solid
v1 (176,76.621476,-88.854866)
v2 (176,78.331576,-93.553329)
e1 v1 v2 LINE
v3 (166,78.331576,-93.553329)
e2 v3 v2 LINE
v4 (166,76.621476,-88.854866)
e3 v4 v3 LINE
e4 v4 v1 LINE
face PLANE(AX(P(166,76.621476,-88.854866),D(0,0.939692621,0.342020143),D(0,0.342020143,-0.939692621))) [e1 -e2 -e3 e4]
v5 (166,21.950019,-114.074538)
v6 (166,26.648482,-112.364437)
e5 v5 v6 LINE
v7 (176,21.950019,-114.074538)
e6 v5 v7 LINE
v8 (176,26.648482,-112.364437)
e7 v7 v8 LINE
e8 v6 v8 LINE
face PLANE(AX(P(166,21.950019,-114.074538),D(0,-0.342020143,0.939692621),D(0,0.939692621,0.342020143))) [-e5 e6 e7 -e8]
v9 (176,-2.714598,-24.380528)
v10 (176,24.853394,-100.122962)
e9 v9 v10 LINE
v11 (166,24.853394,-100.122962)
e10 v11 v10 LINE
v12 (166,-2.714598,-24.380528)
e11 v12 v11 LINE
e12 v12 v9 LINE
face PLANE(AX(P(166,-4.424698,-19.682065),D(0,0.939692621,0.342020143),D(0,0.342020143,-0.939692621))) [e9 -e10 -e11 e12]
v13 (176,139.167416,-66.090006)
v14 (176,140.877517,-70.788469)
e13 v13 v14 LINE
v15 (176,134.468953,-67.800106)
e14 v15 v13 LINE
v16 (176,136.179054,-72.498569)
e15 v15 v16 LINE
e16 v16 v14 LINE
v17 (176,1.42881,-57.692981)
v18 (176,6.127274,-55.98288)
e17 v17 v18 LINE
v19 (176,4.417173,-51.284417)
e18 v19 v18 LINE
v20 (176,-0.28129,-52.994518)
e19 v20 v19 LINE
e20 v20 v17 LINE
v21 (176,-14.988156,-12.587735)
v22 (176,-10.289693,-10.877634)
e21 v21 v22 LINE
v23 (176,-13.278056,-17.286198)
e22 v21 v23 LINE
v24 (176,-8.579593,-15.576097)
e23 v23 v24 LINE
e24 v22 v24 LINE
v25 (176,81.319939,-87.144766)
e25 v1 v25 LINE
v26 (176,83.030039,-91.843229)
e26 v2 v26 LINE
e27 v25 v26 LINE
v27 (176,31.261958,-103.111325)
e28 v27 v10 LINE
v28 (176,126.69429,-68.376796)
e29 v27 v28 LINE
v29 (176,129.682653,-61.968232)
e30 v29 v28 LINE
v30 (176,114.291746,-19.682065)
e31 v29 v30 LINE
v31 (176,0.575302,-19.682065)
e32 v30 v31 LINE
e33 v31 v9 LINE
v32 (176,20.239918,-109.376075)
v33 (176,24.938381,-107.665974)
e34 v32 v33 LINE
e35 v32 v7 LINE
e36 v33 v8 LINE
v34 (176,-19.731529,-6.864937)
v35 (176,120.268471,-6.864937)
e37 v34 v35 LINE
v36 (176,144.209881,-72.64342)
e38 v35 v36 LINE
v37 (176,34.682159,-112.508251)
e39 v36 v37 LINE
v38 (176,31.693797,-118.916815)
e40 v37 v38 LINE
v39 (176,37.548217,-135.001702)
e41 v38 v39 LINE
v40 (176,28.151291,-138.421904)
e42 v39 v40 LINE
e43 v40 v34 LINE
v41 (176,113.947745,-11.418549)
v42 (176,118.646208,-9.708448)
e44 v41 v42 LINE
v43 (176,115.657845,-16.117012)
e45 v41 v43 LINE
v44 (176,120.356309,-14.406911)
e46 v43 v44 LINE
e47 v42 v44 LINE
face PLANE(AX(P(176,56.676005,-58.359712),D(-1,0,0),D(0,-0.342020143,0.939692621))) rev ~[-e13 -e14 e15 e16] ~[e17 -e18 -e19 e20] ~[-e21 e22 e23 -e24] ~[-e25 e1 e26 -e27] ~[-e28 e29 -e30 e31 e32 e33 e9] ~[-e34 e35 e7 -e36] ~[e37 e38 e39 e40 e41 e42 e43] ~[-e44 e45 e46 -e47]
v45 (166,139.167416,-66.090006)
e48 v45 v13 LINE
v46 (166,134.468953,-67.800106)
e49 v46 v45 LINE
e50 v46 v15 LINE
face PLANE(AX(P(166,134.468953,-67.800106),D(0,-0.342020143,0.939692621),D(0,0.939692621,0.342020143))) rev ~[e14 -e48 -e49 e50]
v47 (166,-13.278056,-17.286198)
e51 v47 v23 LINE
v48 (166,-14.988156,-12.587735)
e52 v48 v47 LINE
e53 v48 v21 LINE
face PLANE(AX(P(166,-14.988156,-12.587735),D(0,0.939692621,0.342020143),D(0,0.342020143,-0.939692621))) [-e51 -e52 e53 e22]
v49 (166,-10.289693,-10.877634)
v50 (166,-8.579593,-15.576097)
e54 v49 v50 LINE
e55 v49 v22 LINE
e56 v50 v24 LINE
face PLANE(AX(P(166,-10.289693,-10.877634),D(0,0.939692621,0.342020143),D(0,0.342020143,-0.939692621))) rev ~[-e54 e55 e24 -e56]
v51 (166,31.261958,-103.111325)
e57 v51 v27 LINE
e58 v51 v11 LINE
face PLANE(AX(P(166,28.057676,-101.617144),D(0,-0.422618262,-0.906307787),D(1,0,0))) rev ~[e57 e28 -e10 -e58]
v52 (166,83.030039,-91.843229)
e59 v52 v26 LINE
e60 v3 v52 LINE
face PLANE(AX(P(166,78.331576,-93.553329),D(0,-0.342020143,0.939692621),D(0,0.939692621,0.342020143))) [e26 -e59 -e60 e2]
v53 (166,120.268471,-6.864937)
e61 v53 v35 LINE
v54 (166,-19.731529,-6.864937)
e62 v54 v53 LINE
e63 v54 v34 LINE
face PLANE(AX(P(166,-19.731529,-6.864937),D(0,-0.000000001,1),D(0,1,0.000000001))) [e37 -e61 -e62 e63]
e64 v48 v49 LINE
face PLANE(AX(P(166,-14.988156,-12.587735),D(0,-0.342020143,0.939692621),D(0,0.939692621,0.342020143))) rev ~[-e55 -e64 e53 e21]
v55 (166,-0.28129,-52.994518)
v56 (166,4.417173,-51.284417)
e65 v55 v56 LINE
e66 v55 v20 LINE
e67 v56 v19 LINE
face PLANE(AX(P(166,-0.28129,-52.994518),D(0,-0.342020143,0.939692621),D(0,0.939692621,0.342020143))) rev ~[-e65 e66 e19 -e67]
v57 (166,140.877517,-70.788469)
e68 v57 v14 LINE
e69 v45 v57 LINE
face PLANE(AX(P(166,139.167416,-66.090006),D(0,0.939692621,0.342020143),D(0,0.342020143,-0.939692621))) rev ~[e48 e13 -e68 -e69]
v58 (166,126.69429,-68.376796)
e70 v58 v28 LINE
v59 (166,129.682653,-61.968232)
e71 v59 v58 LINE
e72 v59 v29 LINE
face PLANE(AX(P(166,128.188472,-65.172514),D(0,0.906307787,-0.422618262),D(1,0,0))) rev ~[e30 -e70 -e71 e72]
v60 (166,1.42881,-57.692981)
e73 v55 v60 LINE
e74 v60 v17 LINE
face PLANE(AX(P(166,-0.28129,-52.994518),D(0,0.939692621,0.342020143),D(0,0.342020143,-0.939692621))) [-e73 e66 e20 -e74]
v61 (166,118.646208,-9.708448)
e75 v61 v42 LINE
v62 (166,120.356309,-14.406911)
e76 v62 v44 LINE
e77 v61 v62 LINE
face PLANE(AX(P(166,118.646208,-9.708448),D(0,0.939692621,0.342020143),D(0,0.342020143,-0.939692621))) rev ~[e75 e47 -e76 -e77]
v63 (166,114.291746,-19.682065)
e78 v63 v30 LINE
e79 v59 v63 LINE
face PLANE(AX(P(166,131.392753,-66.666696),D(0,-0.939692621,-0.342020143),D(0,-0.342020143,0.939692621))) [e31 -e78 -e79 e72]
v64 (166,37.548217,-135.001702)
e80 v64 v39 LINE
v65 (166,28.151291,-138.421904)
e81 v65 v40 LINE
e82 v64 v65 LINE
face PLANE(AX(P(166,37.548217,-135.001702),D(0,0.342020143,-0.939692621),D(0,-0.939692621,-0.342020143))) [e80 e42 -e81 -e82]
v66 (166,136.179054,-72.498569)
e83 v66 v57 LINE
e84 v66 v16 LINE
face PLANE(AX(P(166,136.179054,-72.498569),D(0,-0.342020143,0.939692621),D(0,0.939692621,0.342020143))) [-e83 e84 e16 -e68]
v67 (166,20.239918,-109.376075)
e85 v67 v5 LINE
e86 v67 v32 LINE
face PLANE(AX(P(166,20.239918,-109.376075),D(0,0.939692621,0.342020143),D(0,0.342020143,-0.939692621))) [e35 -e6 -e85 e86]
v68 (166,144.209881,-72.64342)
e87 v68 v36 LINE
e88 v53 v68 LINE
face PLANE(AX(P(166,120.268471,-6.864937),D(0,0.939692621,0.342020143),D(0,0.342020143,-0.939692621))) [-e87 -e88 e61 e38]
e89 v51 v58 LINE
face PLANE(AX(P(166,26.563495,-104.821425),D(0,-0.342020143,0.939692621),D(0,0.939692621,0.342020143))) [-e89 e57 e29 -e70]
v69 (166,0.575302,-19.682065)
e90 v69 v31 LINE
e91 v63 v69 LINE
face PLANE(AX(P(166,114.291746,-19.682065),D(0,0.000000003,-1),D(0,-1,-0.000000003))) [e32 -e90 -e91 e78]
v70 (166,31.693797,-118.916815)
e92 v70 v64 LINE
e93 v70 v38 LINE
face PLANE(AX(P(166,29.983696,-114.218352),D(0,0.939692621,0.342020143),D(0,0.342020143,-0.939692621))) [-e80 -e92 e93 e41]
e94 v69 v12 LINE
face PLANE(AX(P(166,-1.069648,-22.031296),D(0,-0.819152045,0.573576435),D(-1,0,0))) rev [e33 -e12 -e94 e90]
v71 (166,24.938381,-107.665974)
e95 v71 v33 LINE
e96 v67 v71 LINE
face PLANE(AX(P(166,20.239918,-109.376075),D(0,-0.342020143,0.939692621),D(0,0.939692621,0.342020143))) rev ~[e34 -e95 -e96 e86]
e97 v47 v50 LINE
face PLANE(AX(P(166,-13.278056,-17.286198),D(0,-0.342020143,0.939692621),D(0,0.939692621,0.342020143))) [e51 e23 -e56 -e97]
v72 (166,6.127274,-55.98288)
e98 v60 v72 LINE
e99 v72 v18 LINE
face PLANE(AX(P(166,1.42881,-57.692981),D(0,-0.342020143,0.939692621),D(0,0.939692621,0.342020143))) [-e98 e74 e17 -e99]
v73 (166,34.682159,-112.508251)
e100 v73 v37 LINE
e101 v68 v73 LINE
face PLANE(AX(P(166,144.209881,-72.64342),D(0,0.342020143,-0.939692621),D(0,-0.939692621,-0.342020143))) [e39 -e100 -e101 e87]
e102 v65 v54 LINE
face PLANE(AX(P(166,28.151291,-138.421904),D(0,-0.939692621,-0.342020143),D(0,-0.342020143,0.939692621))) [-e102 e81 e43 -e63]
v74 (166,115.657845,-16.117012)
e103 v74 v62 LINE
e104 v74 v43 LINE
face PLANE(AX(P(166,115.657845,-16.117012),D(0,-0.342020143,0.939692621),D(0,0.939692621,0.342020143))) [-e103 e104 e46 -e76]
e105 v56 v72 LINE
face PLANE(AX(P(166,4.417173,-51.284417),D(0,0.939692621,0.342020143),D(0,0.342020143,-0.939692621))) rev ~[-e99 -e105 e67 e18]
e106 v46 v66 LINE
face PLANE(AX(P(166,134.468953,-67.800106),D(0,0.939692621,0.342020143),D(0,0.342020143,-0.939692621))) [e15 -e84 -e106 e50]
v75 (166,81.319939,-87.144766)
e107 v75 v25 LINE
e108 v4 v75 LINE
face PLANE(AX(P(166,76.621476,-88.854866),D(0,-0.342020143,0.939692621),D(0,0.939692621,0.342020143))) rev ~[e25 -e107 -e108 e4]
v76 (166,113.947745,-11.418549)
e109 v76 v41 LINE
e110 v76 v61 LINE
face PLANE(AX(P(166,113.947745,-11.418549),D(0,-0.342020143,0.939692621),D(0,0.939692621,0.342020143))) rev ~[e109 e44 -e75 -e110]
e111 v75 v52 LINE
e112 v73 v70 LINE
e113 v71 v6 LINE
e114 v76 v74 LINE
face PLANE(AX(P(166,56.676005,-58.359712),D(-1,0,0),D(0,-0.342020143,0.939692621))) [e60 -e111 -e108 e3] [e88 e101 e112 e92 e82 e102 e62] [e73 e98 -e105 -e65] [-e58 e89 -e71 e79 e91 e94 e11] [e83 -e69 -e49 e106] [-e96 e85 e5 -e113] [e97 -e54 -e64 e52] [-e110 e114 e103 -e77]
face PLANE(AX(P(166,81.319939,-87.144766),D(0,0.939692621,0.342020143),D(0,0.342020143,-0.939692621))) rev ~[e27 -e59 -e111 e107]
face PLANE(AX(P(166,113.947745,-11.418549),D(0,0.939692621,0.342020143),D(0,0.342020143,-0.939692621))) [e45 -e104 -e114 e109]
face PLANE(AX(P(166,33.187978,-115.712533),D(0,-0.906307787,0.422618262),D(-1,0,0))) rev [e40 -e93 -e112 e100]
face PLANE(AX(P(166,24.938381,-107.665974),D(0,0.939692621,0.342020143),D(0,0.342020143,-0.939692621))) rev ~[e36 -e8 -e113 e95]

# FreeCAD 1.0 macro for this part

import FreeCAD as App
import Part
import Sketcher

V = App.Vector
Q = App.Units.Quantity


def edges_at(feature, points):
    """Names of the edges that pass closest to the given points."""
    edges = feature.Shape.Edges
    near = lambda p: min(range(len(edges)), key=lambda i: edges[i].distToShape(Part.Vertex(*p))[0])
    return sorted({f"Edge{near(p) + 1}" for p in points})

doc = App.newDocument("Part")
body = doc.addObject("PartDesign::Body", "Body")

# Sketch on YZ plane
sketch1 = body.newObject("Sketcher::SketchObject", "Sketch")
sketch1.AttachmentSupport = (doc.getObject("YZ_Plane"), [""])
sketch1.MapMode = "FlatFace"
sketch1.addGeometry([
    Part.LineSegment(V(48, 132, 0), V(0, 0, 0)),  # 0
    Part.LineSegment(V(0, 0, 0), V(140, 0, 0)),  # 1
    Part.LineSegment(V(140, 0, 0), V(140, 10, 0)),  # 2
    Part.LineSegment(V(140, 10, 0), V(118, 10, 0)),  # 3
    Part.LineSegment(V(118, 10, 0), V(118, 132, 0)),  # 4
    Part.LineSegment(V(118, 132, 0), V(48, 132, 0)),  # 5
    Part.LineSegment(V(58, 122, 0), V(108, 122, 0)),  # 6
    Part.LineSegment(V(108, 122, 0), V(108, 10, 0)),  # 7
    Part.LineSegment(V(108, 10, 0), V(17, 10, 0)),  # 8
    Part.LineSegment(V(17, 10, 0), V(58, 122, 0)),  # 9
], False)
sketch1.addConstraint([
    Sketcher.Constraint("Coincident", 0, 2, 1, 1),
    Sketcher.Constraint("Coincident", 1, 2, 2, 1),
    Sketcher.Constraint("Coincident", 2, 2, 3, 1),
    Sketcher.Constraint("Coincident", 3, 2, 4, 1),
    Sketcher.Constraint("Coincident", 4, 2, 5, 1),
    Sketcher.Constraint("Coincident", 5, 2, 0, 1),
    Sketcher.Constraint("Coincident", 6, 2, 7, 1),
    Sketcher.Constraint("Coincident", 7, 2, 8, 1),
    Sketcher.Constraint("Coincident", 8, 2, 9, 1),
    Sketcher.Constraint("Coincident", 9, 2, 6, 1),
    Sketcher.Constraint("Horizontal", 1),
    Sketcher.Constraint("Vertical", 2),
    Sketcher.Constraint("Horizontal", 3),
    Sketcher.Constraint("Vertical", 4),
    Sketcher.Constraint("Horizontal", 5),
    Sketcher.Constraint("Horizontal", 6),
    Sketcher.Constraint("Vertical", 7),
    Sketcher.Constraint("Horizontal", 8),
    Sketcher.Constraint("Coincident", 0, 2, -1, 1),
    Sketcher.Constraint("Parallel", 0, 9),
    Sketcher.Constraint("Horizontal", 3, 2, 7, 2),
    Sketcher.Constraint("DistanceX", 1, 1, 1, 2, Q("140 mm")),
    Sketcher.Constraint("DistanceX", 5, 2, 5, 1, Q("70 mm")),
    Sketcher.Constraint("DistanceX", 6, 1, 6, 2, Q("50 mm")),
    Sketcher.Constraint("DistanceY", 2, 1, 2, 2, Q("10 mm")),
    Sketcher.Constraint("Angle", 0, Q("-110 deg")),
    Sketcher.Constraint("Distance", 0, Q("140 mm")),
    Sketcher.Constraint("DistanceX", 6, 2, 4, 2, Q("10 mm")),
    Sketcher.Constraint("DistanceY", 6, 2, 4, 2, Q("10 mm")),
])
pad1 = body.newObject("PartDesign::Pad", "Pad")
pad1.Profile = sketch1
pad1.Length = 10

# Sketch on YZ plane
sketch2 = body.newObject("Sketcher::SketchObject", "Sketch001")
sketch2.AttachmentSupport = (doc.getObject("YZ_Plane"), [""])
sketch2.MapMode = "FlatFace"
sketch2.addGeometry([
    Part.LineSegment(V(110, 8, 0), V(110, 2, 0)),  # 0
    Part.LineSegment(V(110, 2, 0), V(115, 2, 0)),  # 1
    Part.LineSegment(V(115, 2, 0), V(115, 8, 0)),  # 2
    Part.LineSegment(V(115, 8, 0), V(110, 8, 0)),  # 3
    Part.LineSegment(V(7, 8, 0), V(7, 2, 0)),  # 4
    Part.LineSegment(V(7, 2, 0), V(12, 2, 0)),  # 5
    Part.LineSegment(V(12, 2, 0), V(12, 8, 0)),  # 6
    Part.LineSegment(V(12, 8, 0), V(7, 8, 0)),  # 7
    Part.LineSegment(V(50, 129, 0), V(50, 124, 0)),  # 8
    Part.LineSegment(V(50, 124, 0), V(55, 124, 0)),  # 9
    Part.LineSegment(V(55, 124, 0), V(55, 129, 0)),  # 10
    Part.LineSegment(V(55, 129, 0), V(50, 129, 0)),  # 11
    Part.LineSegment(V(110, 129, 0), V(110, 124, 0)),  # 12
    Part.LineSegment(V(110, 124, 0), V(115, 124, 0)),  # 13
    Part.LineSegment(V(115, 124, 0), V(115, 129, 0)),  # 14
    Part.LineSegment(V(115, 129, 0), V(110, 129, 0)),  # 15
    Part.LineSegment(V(50, 8, 0), V(50, 2, 0)),  # 16
    Part.LineSegment(V(50, 2, 0), V(55, 2, 0)),  # 17
    Part.LineSegment(V(55, 2, 0), V(55, 8, 0)),  # 18
    Part.LineSegment(V(55, 8, 0), V(50, 8, 0)),  # 19
    Part.LineSegment(V(110, 68, 0), V(110, 62, 0)),  # 20
    Part.LineSegment(V(110, 62, 0), V(115, 62, 0)),  # 21
    Part.LineSegment(V(115, 62, 0), V(115, 68, 0)),  # 22
    Part.LineSegment(V(115, 68, 0), V(110, 68, 0)),  # 23
], False)
sketch2.addConstraint([
    Sketcher.Constraint("Coincident", 0, 2, 1, 1),
    Sketcher.Constraint("Coincident", 1, 2, 2, 1),
    Sketcher.Constraint("Coincident", 2, 2, 3, 1),
    Sketcher.Constraint("Coincident", 3, 2, 0, 1),
    Sketcher.Constraint("Coincident", 4, 2, 5, 1),
    Sketcher.Constraint("Coincident", 5, 2, 6, 1),
    Sketcher.Constraint("Coincident", 6, 2, 7, 1),
    Sketcher.Constraint("Coincident", 7, 2, 4, 1),
    Sketcher.Constraint("Coincident", 8, 2, 9, 1),
    Sketcher.Constraint("Coincident", 9, 2, 10, 1),
    Sketcher.Constraint("Coincident", 10, 2, 11, 1),
    Sketcher.Constraint("Coincident", 11, 2, 8, 1),
    Sketcher.Constraint("Coincident", 12, 2, 13, 1),
    Sketcher.Constraint("Coincident", 13, 2, 14, 1),
    Sketcher.Constraint("Coincident", 14, 2, 15, 1),
    Sketcher.Constraint("Coincident", 15, 2, 12, 1),
    Sketcher.Constraint("Coincident", 16, 2, 17, 1),
    Sketcher.Constraint("Coincident", 17, 2, 18, 1),
    Sketcher.Constraint("Coincident", 18, 2, 19, 1),
    Sketcher.Constraint("Coincident", 19, 2, 16, 1),
    Sketcher.Constraint("Coincident", 20, 2, 21, 1),
    Sketcher.Constraint("Coincident", 21, 2, 22, 1),
    Sketcher.Constraint("Coincident", 22, 2, 23, 1),
    Sketcher.Constraint("Coincident", 23, 2, 20, 1),
    Sketcher.Constraint("Vertical", 0),
    Sketcher.Constraint("Horizontal", 1),
    Sketcher.Constraint("Vertical", 2),
    Sketcher.Constraint("Horizontal", 3),
    Sketcher.Constraint("Vertical", 4),
    Sketcher.Constraint("Horizontal", 5),
    Sketcher.Constraint("Vertical", 6),
    Sketcher.Constraint("Horizontal", 7),
    Sketcher.Constraint("Vertical", 8),
    Sketcher.Constraint("Horizontal", 9),
    Sketcher.Constraint("Vertical", 10),
    Sketcher.Constraint("Horizontal", 11),
    Sketcher.Constraint("Vertical", 12),
    Sketcher.Constraint("Horizontal", 13),
    Sketcher.Constraint("Vertical", 14),
    Sketcher.Constraint("Horizontal", 15),
    Sketcher.Constraint("Vertical", 16),
    Sketcher.Constraint("Horizontal", 17),
    Sketcher.Constraint("Vertical", 18),
    Sketcher.Constraint("Horizontal", 19),
    Sketcher.Constraint("Vertical", 20),
    Sketcher.Constraint("Horizontal", 21),
    Sketcher.Constraint("Vertical", 22),
    Sketcher.Constraint("Horizontal", 23),
    Sketcher.Constraint("Horizontal", 1, 2, 4, 2),
    Sketcher.Constraint("Horizontal", 3, 2, 6, 2),
    Sketcher.Constraint("Horizontal", 9, 2, 12, 2),
    Sketcher.Constraint("Horizontal", 11, 2, 14, 2),
    Sketcher.Constraint("Horizontal", 5, 2, 16, 2),
    Sketcher.Constraint("Horizontal", 7, 2, 18, 2),
    Sketcher.Constraint("Vertical", 3, 2, 12, 2),
    Sketcher.Constraint("Vertical", 2, 2, 13, 2),
    Sketcher.Constraint("Vertical", 11, 2, 16, 2),
    Sketcher.Constraint("Vertical", 10, 2, 17, 2),
    Sketcher.Constraint("Vertical", 15, 2, 20, 2),
    Sketcher.Constraint("Vertical", 14, 2, 21, 2),
    Sketcher.Constraint("Equal", 3, 5),
    Sketcher.Constraint("Equal", 7, 9),
    Sketcher.Constraint("Equal", 23, 0),
    Sketcher.Constraint("Equal", 6, 8),
    Sketcher.Constraint("Equal", 18, 20),
    Sketcher.Constraint("DistanceX", 1, 1, 1, 2, Q("5 mm")),
    Sketcher.Constraint("DistanceX", -1, 1, 0, 2, Q("110 mm")),
    Sketcher.Constraint("DistanceX", -1, 1, 4, 2, Q("7 mm")),
    Sketcher.Constraint("DistanceX", -1, 1, 8, 2, Q("50 mm")),
    Sketcher.Constraint("DistanceY", 3, 2, 20, 2, Q("55 mm")),
    Sketcher.Constraint("DistanceY", -1, 1, 0, 2, Q("2.5 mm")),
    Sketcher.Constraint("DistanceY", -1, 1, 8, 2, Q("124.06 mm")),
])
pocket1 = body.newObject("PartDesign::Pocket", "Pocket")
pocket1.Profile = sketch2
pocket1.Length = 10
pocket1.Reversed = True
doc.recompute()

chamfer = body.newObject("PartDesign::Chamfer", "Chamfer")
chamfer.Base = (pocket1, edges_at(pocket1, [
    (5, 117.883, 10),
    (5, 107.883, 10),
    (5, 107.883, 121.557),
    (5, 17.279, 10),
]))
chamfer.Size = 5
body2 = doc.addObject("PartDesign::Body", "Body001")
doc.recompute()

body.Placement = App.Placement(V(166, -19.731529, -6.864937), App.Rotation(V(-1, 0, 0), 70))
boolean = body2.newObject("PartDesign::Boolean", "Boolean")
boolean.Type = "Fuse"
boolean.addObjects([body])

doc.recompute()
